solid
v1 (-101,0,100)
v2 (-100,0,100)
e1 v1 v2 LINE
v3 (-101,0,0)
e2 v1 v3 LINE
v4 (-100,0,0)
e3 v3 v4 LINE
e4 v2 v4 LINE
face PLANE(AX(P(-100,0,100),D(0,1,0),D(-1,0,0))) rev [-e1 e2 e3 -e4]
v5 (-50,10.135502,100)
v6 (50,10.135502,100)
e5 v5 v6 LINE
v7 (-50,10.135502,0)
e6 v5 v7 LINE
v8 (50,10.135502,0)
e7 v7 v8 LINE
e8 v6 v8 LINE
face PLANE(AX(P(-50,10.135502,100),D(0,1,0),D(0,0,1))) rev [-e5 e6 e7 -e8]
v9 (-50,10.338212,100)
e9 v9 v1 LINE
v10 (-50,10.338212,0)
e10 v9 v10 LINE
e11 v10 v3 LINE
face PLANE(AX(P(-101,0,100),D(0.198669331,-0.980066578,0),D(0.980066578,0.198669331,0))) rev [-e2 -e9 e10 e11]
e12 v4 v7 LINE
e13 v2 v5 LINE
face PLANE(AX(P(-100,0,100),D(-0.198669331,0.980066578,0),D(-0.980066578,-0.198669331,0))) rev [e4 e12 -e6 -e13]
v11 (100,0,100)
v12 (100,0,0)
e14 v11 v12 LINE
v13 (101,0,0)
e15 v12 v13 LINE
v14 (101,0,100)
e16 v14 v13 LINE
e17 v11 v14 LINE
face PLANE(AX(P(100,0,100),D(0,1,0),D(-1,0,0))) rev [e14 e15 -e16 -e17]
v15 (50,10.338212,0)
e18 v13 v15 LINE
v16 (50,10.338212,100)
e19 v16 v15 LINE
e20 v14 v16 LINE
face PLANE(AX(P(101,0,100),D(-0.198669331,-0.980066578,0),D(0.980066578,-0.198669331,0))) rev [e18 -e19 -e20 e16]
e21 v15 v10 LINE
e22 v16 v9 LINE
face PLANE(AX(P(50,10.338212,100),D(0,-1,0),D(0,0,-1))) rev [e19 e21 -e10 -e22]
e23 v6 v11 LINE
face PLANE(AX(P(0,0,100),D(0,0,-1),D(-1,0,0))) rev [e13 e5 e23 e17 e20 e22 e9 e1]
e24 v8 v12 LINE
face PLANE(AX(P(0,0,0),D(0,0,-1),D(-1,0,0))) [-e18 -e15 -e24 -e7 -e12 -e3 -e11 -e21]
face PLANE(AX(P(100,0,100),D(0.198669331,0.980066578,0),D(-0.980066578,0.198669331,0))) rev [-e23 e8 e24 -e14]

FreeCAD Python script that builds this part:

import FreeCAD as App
import Part
import Sketcher

doc = App.newDocument("Part")
body = doc.addObject("PartDesign::Body", "Body")

# Sketch on XY plane
sketch1 = body.newObject("Sketcher::SketchObject", "Sketch")
sketch1.AttachmentSupport = (doc.getObject("XY_Plane"), [""])
sketch1.MapMode = "FlatFace"
sketch1.addGeometry([
    Part.LineSegment(App.Vector(-100, 0, 0), App.Vector(-50, 10.1, 0)),  # 0
    Part.LineSegment(App.Vector(-50, 10.1, 0), App.Vector(50, 10.1, 0)),  # 1
    Part.LineSegment(App.Vector(50, 10.1, 0), App.Vector(100, 0, 0)),  # 2
    Part.LineSegment(App.Vector(100, 0, 0), App.Vector(101, 0, 0)),  # 3
    Part.LineSegment(App.Vector(101, 0, 0), App.Vector(50, 10.3, 0)),  # 4
    Part.LineSegment(App.Vector(50, 10.3, 0), App.Vector(-50, 10.3, 0)),  # 5
    Part.LineSegment(App.Vector(-50, 10.3, 0), App.Vector(-101, 0, 0)),  # 6
    Part.LineSegment(App.Vector(-101, 0, 0), App.Vector(-100, 0, 0)),  # 7
], False)
sketch1.addConstraint([
    Sketcher.Constraint("Coincident", 0, 2, 1, 1),
    Sketcher.Constraint("Coincident", 1, 2, 2, 1),
    Sketcher.Constraint("Coincident", 2, 2, 3, 1),
    Sketcher.Constraint("Coincident", 3, 2, 4, 1),
    Sketcher.Constraint("Coincident", 4, 2, 5, 1),
    Sketcher.Constraint("Coincident", 5, 2, 6, 1),
    Sketcher.Constraint("Coincident", 6, 2, 7, 1),
    Sketcher.Constraint("Coincident", 7, 2, 0, 1),
    Sketcher.Constraint("Horizontal", 1),
    Sketcher.Constraint("Horizontal", 3),
    Sketcher.Constraint("Horizontal", 5),
    Sketcher.Constraint("Horizontal", 7),
    Sketcher.Constraint("Symmetric", 3, 2, 6, 2, -1, 1),
    Sketcher.Constraint("Symmetric", 2, 2, 7, 2, -2),
    Sketcher.Constraint("Parallel", 2, 4),
    Sketcher.Constraint("Parallel", 0, 6),
    Sketcher.Constraint("Vertical", 1, 2, 4, 2),
    Sketcher.Constraint("Vertical", 0, 2, 5, 2),
    Sketcher.Constraint("DistanceX", 1, 1, 1, 2, 100.0),
    Sketcher.Constraint("DistanceX", 3, 1, 3, 2, 1.0),
    Sketcher.Constraint("DistanceX", -1, 1, 2, 2, 100.0),
    Sketcher.Constraint("DistanceY", -1, 1, 0, 2, 10.135502),
])
pad1 = body.newObject("PartDesign::Pad", "Pad")
pad1.Profile = sketch1
pad1.Length = 100

doc.recompute()
